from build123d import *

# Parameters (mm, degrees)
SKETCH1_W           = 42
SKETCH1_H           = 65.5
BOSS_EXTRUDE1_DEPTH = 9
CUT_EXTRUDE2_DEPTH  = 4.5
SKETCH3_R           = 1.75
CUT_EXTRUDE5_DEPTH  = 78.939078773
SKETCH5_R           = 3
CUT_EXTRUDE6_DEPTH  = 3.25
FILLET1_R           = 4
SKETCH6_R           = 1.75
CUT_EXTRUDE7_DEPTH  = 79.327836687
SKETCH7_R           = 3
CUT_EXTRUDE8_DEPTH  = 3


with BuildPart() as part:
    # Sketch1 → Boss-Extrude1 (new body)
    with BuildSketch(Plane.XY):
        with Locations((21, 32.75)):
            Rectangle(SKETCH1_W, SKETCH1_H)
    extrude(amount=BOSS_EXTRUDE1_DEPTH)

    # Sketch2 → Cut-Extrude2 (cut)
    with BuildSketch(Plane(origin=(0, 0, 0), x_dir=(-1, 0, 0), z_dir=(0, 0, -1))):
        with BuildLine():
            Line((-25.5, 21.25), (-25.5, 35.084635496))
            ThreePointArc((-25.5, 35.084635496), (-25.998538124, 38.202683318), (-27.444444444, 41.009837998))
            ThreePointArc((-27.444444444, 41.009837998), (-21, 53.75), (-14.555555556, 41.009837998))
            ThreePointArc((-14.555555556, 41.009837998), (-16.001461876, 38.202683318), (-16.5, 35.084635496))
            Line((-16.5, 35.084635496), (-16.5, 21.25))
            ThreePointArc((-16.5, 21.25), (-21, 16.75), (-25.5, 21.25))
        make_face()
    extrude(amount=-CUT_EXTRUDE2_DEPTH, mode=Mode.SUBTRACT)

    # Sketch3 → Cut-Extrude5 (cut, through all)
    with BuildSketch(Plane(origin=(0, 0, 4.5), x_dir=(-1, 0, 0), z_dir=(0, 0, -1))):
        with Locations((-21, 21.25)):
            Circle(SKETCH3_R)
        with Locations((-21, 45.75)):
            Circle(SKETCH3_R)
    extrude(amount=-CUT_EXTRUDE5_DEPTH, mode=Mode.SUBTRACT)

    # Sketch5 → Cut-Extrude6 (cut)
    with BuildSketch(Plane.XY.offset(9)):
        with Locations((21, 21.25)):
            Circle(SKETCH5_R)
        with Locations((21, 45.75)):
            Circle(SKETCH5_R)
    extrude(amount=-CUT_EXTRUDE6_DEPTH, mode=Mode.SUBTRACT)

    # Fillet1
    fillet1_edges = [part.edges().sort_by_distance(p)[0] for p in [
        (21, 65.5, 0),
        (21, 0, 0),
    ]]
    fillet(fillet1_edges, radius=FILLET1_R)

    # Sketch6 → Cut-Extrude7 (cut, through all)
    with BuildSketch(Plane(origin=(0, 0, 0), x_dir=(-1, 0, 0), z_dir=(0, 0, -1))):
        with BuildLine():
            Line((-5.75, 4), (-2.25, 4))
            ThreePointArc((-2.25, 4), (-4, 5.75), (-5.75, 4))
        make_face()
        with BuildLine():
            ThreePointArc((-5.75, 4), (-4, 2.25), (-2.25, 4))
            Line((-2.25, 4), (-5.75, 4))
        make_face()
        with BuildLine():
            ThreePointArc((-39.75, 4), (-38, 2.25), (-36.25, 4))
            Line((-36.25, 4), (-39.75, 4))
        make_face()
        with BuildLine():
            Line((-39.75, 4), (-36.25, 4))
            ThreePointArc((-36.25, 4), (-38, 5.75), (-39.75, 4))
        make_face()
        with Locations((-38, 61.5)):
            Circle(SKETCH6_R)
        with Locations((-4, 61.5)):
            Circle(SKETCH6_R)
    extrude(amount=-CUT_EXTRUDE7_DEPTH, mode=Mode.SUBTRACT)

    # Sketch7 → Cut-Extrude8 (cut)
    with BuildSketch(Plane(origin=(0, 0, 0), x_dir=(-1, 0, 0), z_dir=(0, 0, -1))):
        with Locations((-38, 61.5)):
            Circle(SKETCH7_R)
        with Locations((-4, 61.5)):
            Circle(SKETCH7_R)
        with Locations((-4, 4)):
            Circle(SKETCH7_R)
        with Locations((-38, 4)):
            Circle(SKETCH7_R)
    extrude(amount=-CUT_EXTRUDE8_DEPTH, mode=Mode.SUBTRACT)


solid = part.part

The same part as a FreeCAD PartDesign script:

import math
import FreeCAD as App
import Part
import Sketcher
Q = App.Units.Quantity


def edges_at(feature, points):
    """Names of the edges that pass closest to the given points."""
    edges = feature.Shape.Edges
    near = lambda p: min(range(len(edges)), key=lambda i: edges[i].distToShape(Part.Vertex(*p))[0])
    return sorted({f"Edge{near(p) + 1}" for p in points})


def add_polygon(sketch, points):
    """Adds a closed chain of lines whose ends are joined by coincident constraints."""
    first, n = sketch.GeometryCount, len(points)
    for a, b in zip(points, points[1:] + points[:1]):
        sketch.addGeometry(Part.LineSegment(App.Vector(*a, 0), App.Vector(*b, 0)), False)
    for i in range(n):
        sketch.addConstraint(Sketcher.Constraint("Coincident", first + i, 2, first + (i + 1) % n, 1))

doc = App.newDocument("Part")
body = doc.addObject("PartDesign::Body", "Body")

# Sketch on XY plane
sketch1 = doc.addObject("Sketcher::SketchObject", "Sketch")
body.addObject(sketch1)
sketch1.AttachmentSupport = (doc.XY_Plane, [""])
sketch1.MapMode = "FlatFace"
add_polygon(sketch1, [(0, 66), (0, 0), (42, 0), (42, 66)])  # lines 0-3
sketch1.addConstraint(Sketcher.Constraint("Vertical", 0))
sketch1.addConstraint(Sketcher.Constraint("Horizontal", 1))
sketch1.addConstraint(Sketcher.Constraint("Vertical", 2))
sketch1.addConstraint(Sketcher.Constraint("Horizontal", 3))
sketch1.addConstraint(Sketcher.Constraint("Coincident", 0, 2, -1, 1))
sketch1.addConstraint(Sketcher.Constraint("DistanceX", 1, 1, 1, 2, Q("42 mm")))
sketch1.addConstraint(Sketcher.Constraint("DistanceY", 0, 2, 0, 1, Q("65.5 mm")))
pad1 = doc.addObject("PartDesign::Pad", "Pad")
body.addObject(pad1)
pad1.Profile = sketch1
pad1.Length = 9

# Sketch on XY plane
sketch2 = doc.addObject("Sketcher::SketchObject", "Sketch001")
body.addObject(sketch2)
sketch2.AttachmentSupport = (doc.XY_Plane, [""])
sketch2.MapMode = "FlatFace"
sketch2.addGeometry(Part.LineSegment(App.Vector(25.5, 35.1, 0), App.Vector(25.5, 21.2, 0)), False)
sketch2.addGeometry(Part.ArcOfCircle(Part.Circle(App.Vector(21, 21.2, 0), App.Vector(0, 0, 1), 4.5), math.radians(180), math.radians(360)), False)
sketch2.addGeometry(Part.LineSegment(App.Vector(16.5, 21.2, 0), App.Vector(16.5, 35.1, 0)), False)
sketch2.addGeometry(Part.ArcOfCircle(Part.Circle(App.Vector(6.5, 35.1, 0), App.Vector(0, 0, 1), 10), math.radians(0), math.radians(36)), False)
sketch2.addGeometry(Part.ArcOfCircle(Part.Circle(App.Vector(21, 45.8, 0), App.Vector(0, 0, 1), 8), math.radians(-36), math.radians(216)), False)
sketch2.addGeometry(Part.ArcOfCircle(Part.Circle(App.Vector(35.5, 35.1, 0), App.Vector(0, 0, 1), 10), math.radians(144), math.radians(180)), False)
sketch2.addConstraint(Sketcher.Constraint("Tangent", 0, 2, 1, 2))
sketch2.addConstraint(Sketcher.Constraint("Tangent", 1, 1, 2, 1))
sketch2.addConstraint(Sketcher.Constraint("Tangent", 2, 2, 3, 1))
sketch2.addConstraint(Sketcher.Constraint("Tangent", 3, 2, 4, 2))
sketch2.addConstraint(Sketcher.Constraint("Tangent", 4, 1, 5, 1))
sketch2.addConstraint(Sketcher.Constraint("Tangent", 5, 2, 0, 1))
sketch2.addConstraint(Sketcher.Constraint("Vertical", 0))
sketch2.addConstraint(Sketcher.Constraint("Vertical", 2))
sketch2.addConstraint(Sketcher.Constraint("Equal", 3, 5))
sketch2.addConstraint(Sketcher.Constraint("Horizontal", 3, 3, 5, 3))
sketch2.addConstraint(Sketcher.Constraint("Radius", 3, Q("10 mm")))
sketch2.addConstraint(Sketcher.Constraint("Radius", 4, Q("8 mm")))
sketch2.addConstraint(Sketcher.Constraint("Radius", 1, Q("4.5 mm")))
sketch2.addConstraint(Sketcher.Constraint("DistanceX", -1, 1, 1, 3, Q("21 mm")))
sketch2.addConstraint(Sketcher.Constraint("DistanceY", 1, 3, 4, 3, Q("24.5 mm")))
sketch2.addConstraint(Sketcher.Constraint("DistanceY", -1, 1, 1, 3, Q("21.25 mm")))
pocket1 = doc.addObject("PartDesign::Pocket", "Pocket")
body.addObject(pocket1)
pocket1.Profile = sketch2
pocket1.Length = 4.5
pocket1.Reversed = True

# Sketch on XY plane
sketch3 = doc.addObject("Sketcher::SketchObject", "Sketch002")
body.addObject(sketch3)
sketch3.AttachmentSupport = (doc.XY_Plane, [""])
sketch3.MapMode = "FlatFace"
sketch3.AttachmentOffset = App.Placement(App.Vector(0, 0, 4.5), App.Rotation())
sketch3.addGeometry(Part.Circle(App.Vector(21, 21.2, 0), App.Vector(0, 0, 1), 1.8), False)
sketch3.addGeometry(Part.Circle(App.Vector(21, 45.8, 0), App.Vector(0, 0, 1), 1.8), False)
sketch3.addConstraint(Sketcher.Constraint("Equal", 0, 1))
sketch3.addConstraint(Sketcher.Constraint("Vertical", 0, 3, 1, 3))
sketch3.addConstraint(Sketcher.Constraint("Diameter", 0, Q("3.5 mm")))
sketch3.addConstraint(Sketcher.Constraint("DistanceX", -1, 1, 0, 3, Q("21 mm")))
sketch3.addConstraint(Sketcher.Constraint("DistanceY", 0, 3, 1, 3, Q("24.5 mm")))
sketch3.addConstraint(Sketcher.Constraint("DistanceY", -1, 1, 0, 3, Q("21.25 mm")))
pocket2 = doc.addObject("PartDesign::Pocket", "Pocket001")
body.addObject(pocket2)
pocket2.Profile = sketch3
pocket2.Type = "ThroughAll"
pocket2.Reversed = True

# Sketch on XY plane
sketch4 = doc.addObject("Sketcher::SketchObject", "Sketch003")
body.addObject(sketch4)
sketch4.AttachmentSupport = (doc.XY_Plane, [""])
sketch4.MapMode = "FlatFace"
sketch4.AttachmentOffset = App.Placement(App.Vector(0, 0, 9), App.Rotation())
sketch4.addGeometry(Part.Circle(App.Vector(21, 21.2, 0), App.Vector(0, 0, 1), 3), False)
sketch4.addGeometry(Part.Circle(App.Vector(21, 45.8, 0), App.Vector(0, 0, 1), 3), False)
sketch4.addConstraint(Sketcher.Constraint("Equal", 0, 1))
sketch4.addConstraint(Sketcher.Constraint("Vertical", 0, 3, 1, 3))
sketch4.addConstraint(Sketcher.Constraint("Diameter", 0, Q("6 mm")))
sketch4.addConstraint(Sketcher.Constraint("DistanceX", -1, 1, 0, 3, Q("21 mm")))
sketch4.addConstraint(Sketcher.Constraint("DistanceY", 0, 3, 1, 3, Q("24.5 mm")))
sketch4.addConstraint(Sketcher.Constraint("DistanceY", -1, 1, 0, 3, Q("21.25 mm")))
pocket3 = doc.addObject("PartDesign::Pocket", "Pocket002")
body.addObject(pocket3)
pocket3.Profile = sketch4
pocket3.Length = 3.25
doc.recompute()

fillet = doc.addObject("PartDesign::Fillet", "Fillet")
body.addObject(fillet)
fillet.Base = (pocket3, edges_at(pocket3, [(21, 65.5, 0), (21, 0, 0)]))
fillet.Radius = 4

# Sketch on XY plane
sketch5 = doc.addObject("Sketcher::SketchObject", "Sketch004")
body.addObject(sketch5)
sketch5.AttachmentSupport = (doc.XY_Plane, [""])
sketch5.MapMode = "FlatFace"
sketch5.addGeometry(Part.Circle(App.Vector(4, 4, 0), App.Vector(0, 0, 1), 1.8), False)
sketch5.addGeometry(Part.Circle(App.Vector(38, 4, 0), App.Vector(0, 0, 1), 1.8), False)
sketch5.addGeometry(Part.Circle(App.Vector(38, 61.5, 0), App.Vector(0, 0, 1), 1.8), False)
sketch5.addGeometry(Part.Circle(App.Vector(4, 61.5, 0), App.Vector(0, 0, 1), 1.8), False)
sketch5.addConstraint(Sketcher.Constraint("Equal", 0, 1))
sketch5.addConstraint(Sketcher.Constraint("Equal", 1, 2))
sketch5.addConstraint(Sketcher.Constraint("Equal", 2, 3))
sketch5.addConstraint(Sketcher.Constraint("Horizontal", 0, 3, 1, 3))
sketch5.addConstraint(Sketcher.Constraint("Horizontal", 2, 3, 3, 3))
sketch5.addConstraint(Sketcher.Constraint("Vertical", 1, 3, 2, 3))
sketch5.addConstraint(Sketcher.Constraint("Vertical", 0, 3, 3, 3))
sketch5.addConstraint(Sketcher.Constraint("Diameter", 0, Q("3.5 mm")))
sketch5.addConstraint(Sketcher.Constraint("DistanceX", -1, 1, 0, 3, Q("4 mm")))
sketch5.addConstraint(Sketcher.Constraint("DistanceY", -1, 1, 0, 3, Q("4 mm")))
sketch5.addConstraint(Sketcher.Constraint("DistanceX", -1, 1, 1, 3, Q("38 mm")))
sketch5.addConstraint(Sketcher.Constraint("DistanceY", -1, 1, 2, 3, Q("61.5 mm")))
pocket4 = doc.addObject("PartDesign::Pocket", "Pocket003")
body.addObject(pocket4)
pocket4.Profile = sketch5
pocket4.Type = "ThroughAll"
pocket4.Reversed = True

# Sketch on XY plane
sketch6 = doc.addObject("Sketcher::SketchObject", "Sketch005")
body.addObject(sketch6)
sketch6.AttachmentSupport = (doc.XY_Plane, [""])
sketch6.MapMode = "FlatFace"
sketch6.addGeometry(Part.Circle(App.Vector(38, 61.5, 0), App.Vector(0, 0, 1), 3), False)
sketch6.addGeometry(Part.Circle(App.Vector(4, 61.5, 0), App.Vector(0, 0, 1), 3), False)
sketch6.addGeometry(Part.Circle(App.Vector(4, 4, 0), App.Vector(0, 0, 1), 3), False)
sketch6.addGeometry(Part.Circle(App.Vector(38, 4, 0), App.Vector(0, 0, 1), 3), False)
sketch6.addConstraint(Sketcher.Constraint("Equal", 0, 1))
sketch6.addConstraint(Sketcher.Constraint("Equal", 1, 2))
sketch6.addConstraint(Sketcher.Constraint("Equal", 2, 3))
sketch6.addConstraint(Sketcher.Constraint("Horizontal", 0, 3, 1, 3))
sketch6.addConstraint(Sketcher.Constraint("Horizontal", 2, 3, 3, 3))
sketch6.addConstraint(Sketcher.Constraint("Vertical", 1, 3, 2, 3))
sketch6.addConstraint(Sketcher.Constraint("Vertical", 0, 3, 3, 3))
sketch6.addConstraint(Sketcher.Constraint("Diameter", 0, Q("6 mm")))
sketch6.addConstraint(Sketcher.Constraint("DistanceX", -1, 1, 0, 3, Q("38 mm")))
sketch6.addConstraint(Sketcher.Constraint("DistanceX", -1, 1, 1, 3, Q("4 mm")))
sketch6.addConstraint(Sketcher.Constraint("DistanceY", -1, 1, 2, 3, Q("4 mm")))
sketch6.addConstraint(Sketcher.Constraint("DistanceY", -1, 1, 0, 3, Q("61.5 mm")))
pocket5 = doc.addObject("PartDesign::Pocket", "Pocket004")
body.addObject(pocket5)
pocket5.Profile = sketch6
pocket5.Length = 3
pocket5.Reversed = True

doc.recompute()
